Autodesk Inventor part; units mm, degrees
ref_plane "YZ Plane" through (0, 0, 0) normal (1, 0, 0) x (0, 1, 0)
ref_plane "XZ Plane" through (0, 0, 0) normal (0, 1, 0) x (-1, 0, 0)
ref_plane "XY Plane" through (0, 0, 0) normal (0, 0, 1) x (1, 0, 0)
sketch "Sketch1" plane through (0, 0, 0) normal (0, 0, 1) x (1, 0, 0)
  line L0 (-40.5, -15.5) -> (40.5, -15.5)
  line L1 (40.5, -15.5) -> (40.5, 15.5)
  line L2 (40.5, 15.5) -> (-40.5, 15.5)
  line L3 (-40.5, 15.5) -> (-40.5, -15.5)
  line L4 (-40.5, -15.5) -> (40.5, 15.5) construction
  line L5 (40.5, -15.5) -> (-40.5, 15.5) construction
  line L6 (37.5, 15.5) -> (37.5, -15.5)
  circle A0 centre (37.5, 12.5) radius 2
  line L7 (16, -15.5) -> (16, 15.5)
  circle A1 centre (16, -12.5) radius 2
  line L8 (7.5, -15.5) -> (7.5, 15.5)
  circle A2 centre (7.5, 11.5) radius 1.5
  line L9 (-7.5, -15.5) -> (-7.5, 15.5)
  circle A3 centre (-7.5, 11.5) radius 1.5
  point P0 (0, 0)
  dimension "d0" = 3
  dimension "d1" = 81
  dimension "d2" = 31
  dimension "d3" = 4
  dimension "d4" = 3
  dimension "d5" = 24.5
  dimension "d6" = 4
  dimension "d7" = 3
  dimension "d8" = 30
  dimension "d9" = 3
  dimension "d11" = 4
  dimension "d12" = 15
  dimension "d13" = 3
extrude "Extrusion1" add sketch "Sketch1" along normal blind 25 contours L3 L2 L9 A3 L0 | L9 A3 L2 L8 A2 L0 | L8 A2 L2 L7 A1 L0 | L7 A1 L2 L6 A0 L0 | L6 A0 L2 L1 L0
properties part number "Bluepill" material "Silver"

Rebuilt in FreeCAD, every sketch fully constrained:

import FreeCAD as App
import Part
import Sketcher
Q = App.Units.Quantity


def add_polygon(sketch, points):
    """Adds a closed chain of lines whose ends are joined by coincident constraints."""
    first, n = sketch.GeometryCount, len(points)
    for a, b in zip(points, points[1:] + points[:1]):
        sketch.addGeometry(Part.LineSegment(App.Vector(*a, 0), App.Vector(*b, 0)), False)
    for i in range(n):
        sketch.addConstraint(Sketcher.Constraint("Coincident", first + i, 2, first + (i + 1) % n, 1))

doc = App.newDocument("Part")
body = doc.addObject("PartDesign::Body", "Body")

# Sketch on XY plane
sketch1 = body.newObject("Sketcher::SketchObject", "Sketch")
sketch1.AttachmentSupport = (doc.getObject("XY_Plane"), [""])
sketch1.MapMode = "FlatFace"
add_polygon(sketch1, [(-40.5, 15.5), (-40.5, -15.5), (40.5, -15.5), (40.5, 15.5)])  # lines 0-3
sketch1.addGeometry(Part.Circle(App.Vector(-7.5, 11.5, 0), App.Vector(0, 0, 1), 1.5), False)  # 4
sketch1.addGeometry(Part.Circle(App.Vector(7.5, 11.5, 0), App.Vector(0, 0, 1), 1.5), False)  # 5
sketch1.addGeometry(Part.Circle(App.Vector(16, -12.5, 0), App.Vector(0, 0, 1), 2), False)  # 6
sketch1.addGeometry(Part.Circle(App.Vector(37.5, 12.5, 0), App.Vector(0, 0, 1), 2), False)  # 7
sketch1.addConstraint([
    Sketcher.Constraint("Vertical", 0),
    Sketcher.Constraint("Horizontal", 1),
    Sketcher.Constraint("Vertical", 2),
    Sketcher.Constraint("Horizontal", 3),
    Sketcher.Constraint("Equal", 4, 5),
    Sketcher.Constraint("Equal", 6, 7),
    Sketcher.Constraint("Symmetric", 0, 2, 2, 2, -1, 1),
    Sketcher.Constraint("Symmetric", 4, 3, 5, 3, -2),
    Sketcher.Constraint("Diameter", 4, Q("3 mm")),
    Sketcher.Constraint("Diameter", 6, Q("4 mm")),
    Sketcher.Constraint("DistanceX", 1, 1, 1, 2, Q("81 mm")),
    Sketcher.Constraint("DistanceY", 0, 2, 0, 1, Q("31 mm")),
    Sketcher.Constraint("DistanceX", 4, 3, 5, 3, Q("15 mm")),
    Sketcher.Constraint("DistanceX", 5, 3, 7, 3, Q("30 mm")),
    Sketcher.Constraint("DistanceY", 0, 2, 6, 3, Q("3 mm")),
    Sketcher.Constraint("DistanceY", 7, 3, 2, 2, Q("3 mm")),
    Sketcher.Constraint("DistanceY", 5, 3, 2, 2, Q("4 mm")),
    Sketcher.Constraint("DistanceX", 6, 3, 1, 2, Q("24.5 mm")),
])
pad1 = body.newObject("PartDesign::Pad", "Pad")
pad1.Profile = sketch1
pad1.Length = 25

doc.recompute()
